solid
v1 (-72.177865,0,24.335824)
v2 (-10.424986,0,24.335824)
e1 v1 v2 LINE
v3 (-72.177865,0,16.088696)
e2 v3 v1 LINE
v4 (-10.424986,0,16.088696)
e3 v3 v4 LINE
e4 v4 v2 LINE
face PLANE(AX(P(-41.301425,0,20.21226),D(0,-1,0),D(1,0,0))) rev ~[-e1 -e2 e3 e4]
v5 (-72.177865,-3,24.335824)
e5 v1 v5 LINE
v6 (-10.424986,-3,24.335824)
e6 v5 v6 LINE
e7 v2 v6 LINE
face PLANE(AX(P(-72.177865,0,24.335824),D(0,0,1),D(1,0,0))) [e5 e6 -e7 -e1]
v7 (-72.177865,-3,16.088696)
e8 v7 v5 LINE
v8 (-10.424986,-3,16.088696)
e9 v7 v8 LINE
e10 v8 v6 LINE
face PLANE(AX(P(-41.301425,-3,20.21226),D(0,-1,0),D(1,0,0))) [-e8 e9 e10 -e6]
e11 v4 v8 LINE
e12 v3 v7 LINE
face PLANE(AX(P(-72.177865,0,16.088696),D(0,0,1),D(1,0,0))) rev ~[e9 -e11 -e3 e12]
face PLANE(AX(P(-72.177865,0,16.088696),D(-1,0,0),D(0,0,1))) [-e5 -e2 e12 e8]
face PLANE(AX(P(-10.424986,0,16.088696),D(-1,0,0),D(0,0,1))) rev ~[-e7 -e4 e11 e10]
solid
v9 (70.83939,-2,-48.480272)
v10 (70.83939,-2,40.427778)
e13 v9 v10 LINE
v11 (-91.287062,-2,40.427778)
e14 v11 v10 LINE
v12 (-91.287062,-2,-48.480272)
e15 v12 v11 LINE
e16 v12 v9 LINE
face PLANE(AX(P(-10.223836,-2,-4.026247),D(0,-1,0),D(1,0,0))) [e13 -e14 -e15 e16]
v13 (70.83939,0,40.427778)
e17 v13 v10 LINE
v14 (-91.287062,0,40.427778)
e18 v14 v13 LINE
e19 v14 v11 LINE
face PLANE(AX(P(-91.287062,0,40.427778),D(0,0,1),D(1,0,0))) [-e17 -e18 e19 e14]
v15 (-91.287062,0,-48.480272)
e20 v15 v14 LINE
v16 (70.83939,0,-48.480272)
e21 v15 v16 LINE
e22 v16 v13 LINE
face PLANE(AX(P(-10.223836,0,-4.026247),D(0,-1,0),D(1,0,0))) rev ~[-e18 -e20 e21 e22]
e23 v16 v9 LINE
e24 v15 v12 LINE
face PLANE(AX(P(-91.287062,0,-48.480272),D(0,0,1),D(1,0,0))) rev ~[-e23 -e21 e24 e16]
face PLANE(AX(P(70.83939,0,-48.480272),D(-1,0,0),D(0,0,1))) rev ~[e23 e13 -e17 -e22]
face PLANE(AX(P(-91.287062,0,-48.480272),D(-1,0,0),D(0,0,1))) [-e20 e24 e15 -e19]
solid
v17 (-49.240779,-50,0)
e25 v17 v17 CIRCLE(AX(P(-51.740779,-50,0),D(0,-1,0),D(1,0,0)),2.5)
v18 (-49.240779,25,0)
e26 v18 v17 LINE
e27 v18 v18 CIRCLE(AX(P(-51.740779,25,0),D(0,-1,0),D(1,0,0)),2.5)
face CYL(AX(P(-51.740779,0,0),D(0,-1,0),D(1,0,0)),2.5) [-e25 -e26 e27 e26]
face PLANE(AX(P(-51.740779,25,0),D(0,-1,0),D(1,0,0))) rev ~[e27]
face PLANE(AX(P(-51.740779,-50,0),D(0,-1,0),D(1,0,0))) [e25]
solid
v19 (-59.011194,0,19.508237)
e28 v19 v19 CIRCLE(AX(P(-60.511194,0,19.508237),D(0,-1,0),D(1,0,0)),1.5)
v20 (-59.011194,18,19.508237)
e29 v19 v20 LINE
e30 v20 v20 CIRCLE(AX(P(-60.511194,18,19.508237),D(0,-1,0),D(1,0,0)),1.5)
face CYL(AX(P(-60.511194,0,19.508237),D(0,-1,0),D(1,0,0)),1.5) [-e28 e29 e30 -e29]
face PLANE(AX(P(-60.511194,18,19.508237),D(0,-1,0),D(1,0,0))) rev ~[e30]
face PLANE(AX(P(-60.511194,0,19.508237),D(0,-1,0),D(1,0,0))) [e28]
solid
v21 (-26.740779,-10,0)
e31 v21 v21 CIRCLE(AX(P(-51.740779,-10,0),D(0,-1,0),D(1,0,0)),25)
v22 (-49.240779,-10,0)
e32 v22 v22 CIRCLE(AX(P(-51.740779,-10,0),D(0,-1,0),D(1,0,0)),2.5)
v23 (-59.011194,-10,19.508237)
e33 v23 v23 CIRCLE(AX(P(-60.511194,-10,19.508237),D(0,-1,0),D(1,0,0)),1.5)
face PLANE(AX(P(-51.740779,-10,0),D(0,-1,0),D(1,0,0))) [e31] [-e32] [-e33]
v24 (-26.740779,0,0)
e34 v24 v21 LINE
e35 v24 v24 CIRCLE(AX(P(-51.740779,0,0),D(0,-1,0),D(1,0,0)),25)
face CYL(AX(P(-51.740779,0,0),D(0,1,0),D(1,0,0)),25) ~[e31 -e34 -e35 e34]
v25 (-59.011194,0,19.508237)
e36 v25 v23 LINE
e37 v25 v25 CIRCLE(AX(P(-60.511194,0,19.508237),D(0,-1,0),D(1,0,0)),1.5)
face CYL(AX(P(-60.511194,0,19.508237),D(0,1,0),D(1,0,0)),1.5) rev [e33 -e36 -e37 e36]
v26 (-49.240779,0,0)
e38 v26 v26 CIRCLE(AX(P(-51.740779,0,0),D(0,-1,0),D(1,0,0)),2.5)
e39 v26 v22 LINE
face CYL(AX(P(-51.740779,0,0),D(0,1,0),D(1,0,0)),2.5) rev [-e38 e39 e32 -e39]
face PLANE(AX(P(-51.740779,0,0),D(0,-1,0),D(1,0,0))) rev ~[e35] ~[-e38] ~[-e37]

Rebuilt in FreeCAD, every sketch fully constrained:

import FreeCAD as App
import Part
import Sketcher
Q = App.Units.Quantity


def add_polygon(sketch, points):
    """Adds a closed chain of lines whose ends are joined by coincident constraints."""
    first, n = sketch.GeometryCount, len(points)
    for a, b in zip(points, points[1:] + points[:1]):
        sketch.addGeometry(Part.LineSegment(App.Vector(*a, 0), App.Vector(*b, 0)), False)
    for i in range(n):
        sketch.addConstraint(Sketcher.Constraint("Coincident", first + i, 2, first + (i + 1) % n, 1))

doc = App.newDocument("Part")
body = doc.addObject("PartDesign::Body", "Body")

# Sketch on XZ plane
sketch1 = body.newObject("Sketcher::SketchObject", "Sketch")
sketch1.AttachmentSupport = (doc.getObject("XZ_Plane"), [""])
sketch1.MapMode = "FlatFace"
sketch1.addGeometry(Part.Circle(App.Vector(-51.740779, 0, 0), App.Vector(0, 0, 1), 25), False)
sketch1.addGeometry(Part.Circle(App.Vector(-51.740779, 0, 0), App.Vector(0, 0, 1), 2.5), False)
sketch1.addGeometry(Part.Circle(App.Vector(-60.511194, 19.508237, 0), App.Vector(0, 0, 1), 1.5), False)
sketch1.addConstraint(Sketcher.Constraint("Coincident", 1, 3, 0, 3))
sketch1.addConstraint(Sketcher.Constraint("PointOnObject", 0, 3, -1))
sketch1.addConstraint(Sketcher.Constraint("Diameter", 0, Q("50 mm")))
sketch1.addConstraint(Sketcher.Constraint("Diameter", 1, Q("5 mm")))
sketch1.addConstraint(Sketcher.Constraint("Diameter", 2, Q("3 mm")))
sketch1.addConstraint(Sketcher.Constraint("DistanceX", 0, 3, -1, 1, Q("51.740779 mm")))
sketch1.addConstraint(Sketcher.Constraint("DistanceX", 2, 3, -1, 1, Q("60.511194 mm")))
sketch1.addConstraint(Sketcher.Constraint("DistanceY", -1, 1, 2, 3, Q("19.508237 mm")))
pad1 = body.newObject("PartDesign::Pad", "Pad")
pad1.Profile = sketch1
pad1.Length = 10
body2 = doc.addObject("PartDesign::Body", "Body001")

# Sketch on XZ plane
sketch2 = body2.newObject("Sketcher::SketchObject", "Sketch001")
sketch2.AttachmentSupport = (doc.getObject("XZ_Plane001"), [""])
sketch2.MapMode = "FlatFace"
sketch2.addGeometry(Part.Circle(App.Vector(-51.740779, 0, 0), App.Vector(0, 0, 1), 2.5), False)
sketch2.addConstraint(Sketcher.Constraint("PointOnObject", 0, 3, -1))
sketch2.addConstraint(Sketcher.Constraint("Diameter", 0, Q("5 mm")))
sketch2.addConstraint(Sketcher.Constraint("DistanceX", 0, 3, -1, 1, Q("51.740779 mm")))
pad2 = body2.newObject("PartDesign::Pad", "Pad001")
pad2.Profile = sketch2
pad2.Type = "TwoLengths"
pad2.Length = 50
pad2.Length2 = 25
body3 = doc.addObject("PartDesign::Body", "Body002")

# Sketch on XZ plane
sketch3 = body3.newObject("Sketcher::SketchObject", "Sketch002")
sketch3.AttachmentSupport = (doc.getObject("XZ_Plane002"), [""])
sketch3.MapMode = "FlatFace"
add_polygon(sketch3, [(-91.287062, 40.427778), (-91.287062, -48.480272), (70.83939, -48.480272), (70.83939, 40.427778)])  # lines 0-3
sketch3.addConstraint(Sketcher.Constraint("Vertical", 0))
sketch3.addConstraint(Sketcher.Constraint("Horizontal", 1))
sketch3.addConstraint(Sketcher.Constraint("Vertical", 2))
sketch3.addConstraint(Sketcher.Constraint("Horizontal", 3))
sketch3.addConstraint(Sketcher.Constraint("DistanceX", 1, 1, 1, 2, Q("162.126452 mm")))
sketch3.addConstraint(Sketcher.Constraint("DistanceY", 0, 2, 0, 1, Q("88.90805 mm")))
sketch3.addConstraint(Sketcher.Constraint("DistanceX", 0, 2, -1, 1, Q("91.287062 mm")))
sketch3.addConstraint(Sketcher.Constraint("DistanceY", 0, 2, -1, 1, Q("48.480272 mm")))
pad3 = body3.newObject("PartDesign::Pad", "Pad002")
pad3.Profile = sketch3
pad3.Length = 2
body4 = doc.addObject("PartDesign::Body", "Body003")

# Sketch on XZ plane
sketch4 = body4.newObject("Sketcher::SketchObject", "Sketch003")
sketch4.AttachmentSupport = (doc.getObject("XZ_Plane003"), [""])
sketch4.MapMode = "FlatFace"
sketch4.addGeometry(Part.Circle(App.Vector(-60.511194, 19.508237, 0), App.Vector(0, 0, 1), 1.5), False)
sketch4.addConstraint(Sketcher.Constraint("Diameter", 0, Q("3 mm")))
sketch4.addConstraint(Sketcher.Constraint("DistanceX", 0, 3, -1, 1, Q("60.511194 mm")))
sketch4.addConstraint(Sketcher.Constraint("DistanceY", -1, 1, 0, 3, Q("19.508237 mm")))
pad4 = body4.newObject("PartDesign::Pad", "Pad003")
pad4.Profile = sketch4
pad4.Length = 18
pad4.Reversed = True
body5 = doc.addObject("PartDesign::Body", "Body004")

# Sketch on XZ plane
sketch5 = body5.newObject("Sketcher::SketchObject", "Sketch004")
sketch5.AttachmentSupport = (doc.getObject("XZ_Plane004"), [""])
sketch5.MapMode = "FlatFace"
sketch5.addGeometry(Part.Circle(App.Vector(-60.511194, 19.508237, 0), App.Vector(0, 0, 1), 1.5), False)
sketch5.addConstraint(Sketcher.Constraint("Diameter", 0, Q("3 mm")))
sketch5.addConstraint(Sketcher.Constraint("DistanceX", 0, 3, -1, 1, Q("60.511194 mm")))
sketch5.addConstraint(Sketcher.Constraint("DistanceY", -1, 1, 0, 3, Q("19.508237 mm")))
pad5 = body5.newObject("PartDesign::Pad", "Pad004")
pad5.Profile = sketch5
pad5.Length = 3
body6 = doc.addObject("PartDesign::Body", "Body005")

# Sketch on XZ plane
sketch6 = body6.newObject("Sketcher::SketchObject", "Sketch005")
sketch6.AttachmentSupport = (doc.getObject("XZ_Plane005"), [""])
sketch6.MapMode = "FlatFace"
add_polygon(sketch6, [(-72.177865, 24.335824), (-72.177865, 16.088696), (-10.424986, 16.088696), (-10.424986, 24.335824)])  # lines 0-3
sketch6.addConstraint(Sketcher.Constraint("Vertical", 0))
sketch6.addConstraint(Sketcher.Constraint("Horizontal", 1))
sketch6.addConstraint(Sketcher.Constraint("Vertical", 2))
sketch6.addConstraint(Sketcher.Constraint("Horizontal", 3))
sketch6.addConstraint(Sketcher.Constraint("DistanceX", 1, 1, 1, 2, Q("61.752879 mm")))
sketch6.addConstraint(Sketcher.Constraint("DistanceY", 0, 2, 0, 1, Q("8.247128 mm")))
sketch6.addConstraint(Sketcher.Constraint("DistanceX", 0, 2, -1, 1, Q("72.177865 mm")))
sketch6.addConstraint(Sketcher.Constraint("DistanceY", -1, 1, 0, 2, Q("16.088696 mm")))
pad6 = body6.newObject("PartDesign::Pad", "Pad005")
pad6.Profile = sketch6
pad6.Length = 3
body5.Visibility = False

doc.recompute()
